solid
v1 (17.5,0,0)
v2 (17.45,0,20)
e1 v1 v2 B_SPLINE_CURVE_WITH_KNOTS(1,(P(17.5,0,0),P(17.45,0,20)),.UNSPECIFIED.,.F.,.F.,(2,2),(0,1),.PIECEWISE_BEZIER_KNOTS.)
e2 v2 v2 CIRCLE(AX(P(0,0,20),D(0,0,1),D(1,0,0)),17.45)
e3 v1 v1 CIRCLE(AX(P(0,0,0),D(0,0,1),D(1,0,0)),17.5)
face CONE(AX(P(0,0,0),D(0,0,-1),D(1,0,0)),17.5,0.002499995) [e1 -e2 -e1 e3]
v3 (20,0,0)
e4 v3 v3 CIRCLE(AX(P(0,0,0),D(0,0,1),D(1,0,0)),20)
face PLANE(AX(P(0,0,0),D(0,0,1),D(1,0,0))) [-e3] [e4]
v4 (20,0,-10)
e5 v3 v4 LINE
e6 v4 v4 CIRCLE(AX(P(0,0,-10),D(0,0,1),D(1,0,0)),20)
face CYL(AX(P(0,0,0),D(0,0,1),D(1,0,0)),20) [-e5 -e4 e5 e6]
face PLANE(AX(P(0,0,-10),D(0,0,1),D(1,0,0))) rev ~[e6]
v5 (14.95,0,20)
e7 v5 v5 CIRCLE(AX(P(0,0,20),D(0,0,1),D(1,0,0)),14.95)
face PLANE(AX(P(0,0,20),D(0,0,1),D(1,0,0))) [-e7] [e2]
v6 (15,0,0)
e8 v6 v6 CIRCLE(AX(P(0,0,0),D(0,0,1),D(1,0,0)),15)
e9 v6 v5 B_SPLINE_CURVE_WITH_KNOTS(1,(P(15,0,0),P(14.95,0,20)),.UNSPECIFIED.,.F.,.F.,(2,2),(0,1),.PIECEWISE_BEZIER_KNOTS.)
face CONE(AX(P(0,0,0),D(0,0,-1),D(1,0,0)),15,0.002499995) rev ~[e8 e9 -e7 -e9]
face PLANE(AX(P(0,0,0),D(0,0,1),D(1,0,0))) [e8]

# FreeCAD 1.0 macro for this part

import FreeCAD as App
import Part
import Sketcher
from FreeCAD import Vector
Q = App.Units.Quantity

doc = App.newDocument("Part")
params = doc.addObject("Spreadsheet::Sheet", "Params")
for row, (alias, value) in enumerate([
    ("sketch1_diameter", "40 mm"),
    ("pad1_length", "10 mm"),
    ("sketch2_diameter", "35 mm"),
    ("sketch3_diameter", "34.9 mm"),
    ("sketch4_diameter", "30 mm"),
    ("sketch5_diameter", "29.9 mm"),
], start=1):
    params.set(f"A{row}", alias)
    params.set(f"B{row}", "=" + value)
    params.setAlias(f"B{row}", alias)

body = doc.addObject("PartDesign::Body", "Body")

sketch1 = doc.addObject("Sketcher::SketchObject", "Sketch")
body.addObject(sketch1)
sketch1.AttachmentSupport = (doc.XY_Plane, [""])
sketch1.MapMode = "FlatFace"
sketch1.addGeometry(Part.Circle(Vector(0, 0, 0), Vector(0, 0, 1), 20), False)
sketch1.addConstraint(Sketcher.Constraint("Coincident", 0, 3, -1, 1))
sketch1.addConstraint(Sketcher.Constraint("Diameter", 0, Q("40 mm")))
sketch1.setExpression("Constraints[1]", "Params.sketch1_diameter")
pad1 = doc.addObject("PartDesign::Pad", "Pad")
body.addObject(pad1)
pad1.Profile = sketch1
pad1.setExpression("Length", "Params.pad1_length")
pad1.Reversed = True

sketch2 = doc.addObject("Sketcher::SketchObject", "Sketch001")
body.addObject(sketch2)
sketch2.AttachmentSupport = (doc.XY_Plane, [""])
sketch2.MapMode = "FlatFace"
sketch2.addGeometry(Part.Circle(Vector(0, 0, 0), Vector(0, 0, 1), 17.5), False)
sketch2.addConstraint(Sketcher.Constraint("Coincident", 0, 3, -1, 1))
sketch2.addConstraint(Sketcher.Constraint("Diameter", 0, Q("35 mm")))
sketch2.setExpression("Constraints[1]", "Params.sketch2_diameter")

sketch3 = doc.addObject("Sketcher::SketchObject", "Sketch002")
body.addObject(sketch3)
sketch3.AttachmentSupport = (doc.XY_Plane, [""])
sketch3.MapMode = "FlatFace"
sketch3.AttachmentOffset = App.Placement(Vector(0, 0, 20), App.Rotation())
sketch3.addGeometry(Part.Circle(Vector(0, 0, 0), Vector(0, 0, 1), 17.45), False)
sketch3.addConstraint(Sketcher.Constraint("Coincident", 0, 3, -1, 1))
sketch3.addConstraint(Sketcher.Constraint("Diameter", 0, Q("34.9 mm")))
sketch3.setExpression("Constraints[1]", "Params.sketch3_diameter")

additiveloft = doc.addObject("PartDesign::AdditiveLoft", "AdditiveLoft")
body.addObject(additiveloft)
additiveloft.Profile = sketch2
additiveloft.Sections = [sketch3]

sketch4 = doc.addObject("Sketcher::SketchObject", "Sketch003")
body.addObject(sketch4)
sketch4.AttachmentSupport = (doc.XY_Plane, [""])
sketch4.MapMode = "FlatFace"
sketch4.addGeometry(Part.Circle(Vector(0, 0, 0), Vector(0, 0, 1), 15), False)
sketch4.addConstraint(Sketcher.Constraint("Coincident", 0, 3, -1, 1))
sketch4.addConstraint(Sketcher.Constraint("Diameter", 0, Q("30 mm")))
sketch4.setExpression("Constraints[1]", "Params.sketch4_diameter")

sketch5 = doc.addObject("Sketcher::SketchObject", "Sketch004")
body.addObject(sketch5)
sketch5.AttachmentSupport = (doc.XY_Plane, [""])
sketch5.MapMode = "FlatFace"
sketch5.AttachmentOffset = App.Placement(Vector(0, 0, 20), App.Rotation())
sketch5.addGeometry(Part.Circle(Vector(0, 0, 0), Vector(0, 0, 1), 14.95), False)
sketch5.addConstraint(Sketcher.Constraint("Coincident", 0, 3, -1, 1))
sketch5.addConstraint(Sketcher.Constraint("Diameter", 0, Q("29.9 mm")))
sketch5.setExpression("Constraints[1]", "Params.sketch5_diameter")

subtractiveloft = doc.addObject("PartDesign::SubtractiveLoft", "SubtractiveLoft")
body.addObject(subtractiveloft)
subtractiveloft.Profile = sketch4
subtractiveloft.Sections = [sketch5]

doc.recompute()
